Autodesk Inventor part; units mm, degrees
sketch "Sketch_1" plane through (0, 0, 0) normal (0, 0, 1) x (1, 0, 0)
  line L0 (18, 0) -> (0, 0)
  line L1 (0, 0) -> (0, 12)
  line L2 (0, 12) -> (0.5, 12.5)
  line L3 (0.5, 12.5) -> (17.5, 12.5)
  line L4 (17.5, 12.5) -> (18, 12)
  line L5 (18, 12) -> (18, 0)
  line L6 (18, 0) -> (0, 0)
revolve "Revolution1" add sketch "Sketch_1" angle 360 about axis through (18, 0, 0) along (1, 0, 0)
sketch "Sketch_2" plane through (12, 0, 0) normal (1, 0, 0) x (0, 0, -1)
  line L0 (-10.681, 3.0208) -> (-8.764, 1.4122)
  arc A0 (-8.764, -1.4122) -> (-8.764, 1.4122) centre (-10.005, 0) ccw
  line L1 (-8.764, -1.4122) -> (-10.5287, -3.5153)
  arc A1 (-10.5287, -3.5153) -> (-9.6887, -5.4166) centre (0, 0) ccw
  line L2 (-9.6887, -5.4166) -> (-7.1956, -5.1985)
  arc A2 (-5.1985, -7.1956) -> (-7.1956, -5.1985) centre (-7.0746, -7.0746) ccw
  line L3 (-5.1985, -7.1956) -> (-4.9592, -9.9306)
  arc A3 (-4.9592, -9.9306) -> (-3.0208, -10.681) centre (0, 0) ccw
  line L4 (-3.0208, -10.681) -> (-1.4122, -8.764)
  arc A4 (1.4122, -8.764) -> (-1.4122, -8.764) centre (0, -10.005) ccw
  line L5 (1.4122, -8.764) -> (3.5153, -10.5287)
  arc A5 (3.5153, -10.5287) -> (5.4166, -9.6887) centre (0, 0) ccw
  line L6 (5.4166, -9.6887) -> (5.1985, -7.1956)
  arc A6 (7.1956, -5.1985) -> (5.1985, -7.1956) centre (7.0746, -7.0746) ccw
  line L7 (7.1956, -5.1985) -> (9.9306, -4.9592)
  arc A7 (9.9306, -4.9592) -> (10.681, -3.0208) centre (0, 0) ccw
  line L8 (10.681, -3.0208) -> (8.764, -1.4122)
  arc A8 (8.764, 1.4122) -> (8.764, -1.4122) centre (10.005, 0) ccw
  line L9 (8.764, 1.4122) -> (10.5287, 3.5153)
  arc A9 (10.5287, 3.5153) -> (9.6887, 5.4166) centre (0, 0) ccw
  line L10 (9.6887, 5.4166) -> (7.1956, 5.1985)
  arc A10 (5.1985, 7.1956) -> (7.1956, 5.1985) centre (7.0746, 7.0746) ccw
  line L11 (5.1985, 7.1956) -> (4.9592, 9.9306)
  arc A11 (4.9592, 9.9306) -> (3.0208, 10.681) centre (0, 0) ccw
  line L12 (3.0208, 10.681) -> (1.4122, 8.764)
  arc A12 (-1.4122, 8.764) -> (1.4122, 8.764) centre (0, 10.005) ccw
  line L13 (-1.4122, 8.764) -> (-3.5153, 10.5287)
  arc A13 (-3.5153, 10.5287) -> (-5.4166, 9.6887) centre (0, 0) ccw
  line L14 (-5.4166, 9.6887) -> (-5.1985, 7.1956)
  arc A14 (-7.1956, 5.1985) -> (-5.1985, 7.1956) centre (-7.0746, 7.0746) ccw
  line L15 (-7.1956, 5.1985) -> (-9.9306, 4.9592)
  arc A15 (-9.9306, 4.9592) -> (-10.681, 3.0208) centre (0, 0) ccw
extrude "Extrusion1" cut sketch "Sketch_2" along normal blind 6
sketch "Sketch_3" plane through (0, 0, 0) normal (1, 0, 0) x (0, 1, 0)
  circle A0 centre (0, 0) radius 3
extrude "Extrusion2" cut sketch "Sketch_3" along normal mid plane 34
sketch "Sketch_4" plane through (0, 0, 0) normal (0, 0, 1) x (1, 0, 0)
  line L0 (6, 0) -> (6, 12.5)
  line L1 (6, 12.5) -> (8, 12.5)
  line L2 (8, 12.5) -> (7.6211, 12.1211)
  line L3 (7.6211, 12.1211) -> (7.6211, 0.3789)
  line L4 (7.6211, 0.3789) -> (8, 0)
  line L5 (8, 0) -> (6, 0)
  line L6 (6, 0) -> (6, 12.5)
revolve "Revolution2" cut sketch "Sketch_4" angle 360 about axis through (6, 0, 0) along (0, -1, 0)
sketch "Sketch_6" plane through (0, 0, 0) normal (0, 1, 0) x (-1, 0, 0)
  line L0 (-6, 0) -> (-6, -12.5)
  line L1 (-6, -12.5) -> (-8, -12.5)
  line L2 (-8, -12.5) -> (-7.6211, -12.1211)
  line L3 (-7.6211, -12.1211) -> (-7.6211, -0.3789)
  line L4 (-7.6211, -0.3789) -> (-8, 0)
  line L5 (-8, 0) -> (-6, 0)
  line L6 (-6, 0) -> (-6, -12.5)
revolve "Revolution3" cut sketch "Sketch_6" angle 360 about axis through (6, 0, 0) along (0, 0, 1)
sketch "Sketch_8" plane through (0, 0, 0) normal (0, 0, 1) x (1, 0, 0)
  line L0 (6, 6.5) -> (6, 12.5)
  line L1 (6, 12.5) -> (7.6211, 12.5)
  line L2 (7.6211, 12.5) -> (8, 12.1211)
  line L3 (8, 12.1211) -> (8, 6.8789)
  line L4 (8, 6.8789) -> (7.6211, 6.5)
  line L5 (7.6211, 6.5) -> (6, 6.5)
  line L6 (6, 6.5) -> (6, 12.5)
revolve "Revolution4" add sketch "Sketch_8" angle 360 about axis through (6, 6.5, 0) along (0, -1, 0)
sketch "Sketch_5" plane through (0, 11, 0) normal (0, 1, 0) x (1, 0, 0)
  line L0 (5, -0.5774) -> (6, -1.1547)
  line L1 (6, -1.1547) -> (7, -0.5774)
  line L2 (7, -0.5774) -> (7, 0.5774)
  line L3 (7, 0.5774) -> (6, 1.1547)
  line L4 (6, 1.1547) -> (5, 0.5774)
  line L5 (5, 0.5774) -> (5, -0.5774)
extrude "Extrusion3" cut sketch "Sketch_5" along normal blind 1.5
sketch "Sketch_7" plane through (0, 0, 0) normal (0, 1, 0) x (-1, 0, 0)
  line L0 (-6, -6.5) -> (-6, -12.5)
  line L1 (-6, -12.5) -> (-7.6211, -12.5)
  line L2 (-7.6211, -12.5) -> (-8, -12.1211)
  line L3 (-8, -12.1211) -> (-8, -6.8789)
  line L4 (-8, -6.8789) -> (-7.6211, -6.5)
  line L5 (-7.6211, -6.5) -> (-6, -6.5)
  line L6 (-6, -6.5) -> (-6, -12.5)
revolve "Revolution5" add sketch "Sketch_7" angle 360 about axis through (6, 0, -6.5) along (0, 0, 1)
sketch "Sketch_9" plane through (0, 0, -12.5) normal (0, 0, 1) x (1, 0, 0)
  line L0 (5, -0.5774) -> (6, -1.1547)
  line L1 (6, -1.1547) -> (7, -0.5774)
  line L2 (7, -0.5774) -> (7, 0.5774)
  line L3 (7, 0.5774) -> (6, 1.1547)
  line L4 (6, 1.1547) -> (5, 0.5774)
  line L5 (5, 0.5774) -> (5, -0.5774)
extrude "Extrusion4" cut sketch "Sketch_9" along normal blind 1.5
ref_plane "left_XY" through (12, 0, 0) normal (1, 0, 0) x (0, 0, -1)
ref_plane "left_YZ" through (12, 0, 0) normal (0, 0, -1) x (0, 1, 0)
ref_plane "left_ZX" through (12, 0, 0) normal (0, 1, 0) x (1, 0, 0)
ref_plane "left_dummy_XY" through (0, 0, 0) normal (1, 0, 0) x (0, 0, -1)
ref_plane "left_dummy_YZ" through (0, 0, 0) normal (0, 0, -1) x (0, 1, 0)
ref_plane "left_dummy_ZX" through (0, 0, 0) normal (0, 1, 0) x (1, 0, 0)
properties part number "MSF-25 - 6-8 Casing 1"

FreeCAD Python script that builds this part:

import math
import FreeCAD as App
import Part
import Sketcher

V = App.Vector
Q = App.Units.Quantity


def add_polygon(sketch, points):
    """Adds a closed chain of lines whose ends are joined by coincident constraints."""
    first, n = sketch.GeometryCount, len(points)
    for a, b in zip(points, points[1:] + points[:1]):
        sketch.addGeometry(Part.LineSegment(App.Vector(*a, 0), App.Vector(*b, 0)), False)
    for i in range(n):
        sketch.addConstraint(Sketcher.Constraint("Coincident", first + i, 2, first + (i + 1) % n, 1))

doc = App.newDocument("Part")
params = doc.addObject("Spreadsheet::Sheet", "Params")
for row, (alias, value) in enumerate([
    ("sketch1_width", "18 mm"),
    ("sketch1_width2", "17 mm"),
    ("sketch1_height", "12 mm"),
    ("revolution_angle", "360 deg"),
    ("sketch2_radius", "1.88 mm"),
    ("pocket1_length", "6 mm"),
    ("sketch3_diameter", "6 mm"),
    ("pocket2_length", "34 mm"),
    ("sketch4_width", "2 mm"),
    ("sketch4_height", "12.5 mm"),
    ("groove_angle", "360 deg"),
    ("sketch5_width", "2 mm"),
    ("sketch5_height", "12.5 mm"),
    ("groove2_angle", "360 deg"),
    ("sketch6_height", "6 mm"),
    ("revolution2_angle", "360 deg"),
    ("pocket3_length", "1.5 mm"),
    ("sketch8_height", "6 mm"),
    ("revolution3_angle", "360 deg"),
    ("pocket4_length", "1.5 mm"),
], start=1):
    params.set(f"A{row}", alias)
    params.set(f"B{row}", "=" + value)
    params.setAlias(f"B{row}", alias)

body = doc.addObject("PartDesign::Body", "Body")

# Sketch on XY plane
sketch1 = doc.addObject("Sketcher::SketchObject", "Sketch")
body.addObject(sketch1)
sketch1.AttachmentSupport = (doc.XY_Plane, [""])
sketch1.MapMode = "FlatFace"
add_polygon(sketch1, [(0, 0), (18, 0), (18, 12), (17.5, 12.5), (0.5, 12.5), (0, 12)])  # lines 0-5
sketch1.addConstraint([
    Sketcher.Constraint("Horizontal", 0),
    Sketcher.Constraint("Vertical", 1),
    Sketcher.Constraint("Horizontal", 3),
    Sketcher.Constraint("Vertical", 5),
    Sketcher.Constraint("Coincident", 5, 2, -1, 1),
    Sketcher.Constraint("Perpendicular", 2, 4),
    Sketcher.Constraint("Horizontal", 1, 2, 4, 2),
    Sketcher.Constraint("Equal", 2, 4),
    Sketcher.Constraint("DistanceX", 0, 1, 0, 2, Q("18 mm")),
    Sketcher.Constraint("DistanceX", 3, 2, 3, 1, Q("17 mm")),
    Sketcher.Constraint("DistanceY", 1, 1, 1, 2, Q("12 mm")),
])
sketch1.setExpression("Constraints[14]", "Params.sketch1_width")
sketch1.setExpression("Constraints[15]", "Params.sketch1_width2")
sketch1.setExpression("Constraints[16]", "Params.sketch1_height")
revolution = doc.addObject("PartDesign::Revolution", "Revolution")
body.addObject(revolution)
revolution.Profile = sketch1
revolution.ReferenceAxis = (sketch1, ["H_Axis"])
revolution.setExpression("Angle", "Params.revolution_angle")

# Sketch on YZ plane
sketch2 = doc.addObject("Sketcher::SketchObject", "Sketch001")
body.addObject(sketch2)
sketch2.AttachmentSupport = (doc.YZ_Plane, [""])
sketch2.MapMode = "FlatFace"
sketch2.AttachmentOffset = App.Placement(V(0, 0, 12), App.Rotation())
sketch2.addGeometry([
    Part.ArcOfCircle(Part.Circle(V(0.003085, 0.006977, 0), V(0, 0, 1), 11.092401), math.radians(63.461265), math.radians(74.213562)),  # 0
    Part.LineSegment(V(3.0208, 10.681, 0), V(1.4122, 8.764, 0)),  # 1
    Part.ArcOfCircle(Part.Circle(V(0, 10.005, 0), V(0, 0, 1), 1.879997), math.radians(-138.691941), math.radians(-41.308059)),  # 2
    Part.LineSegment(V(-1.4122, 8.764, 0), V(-3.5153, 10.5287, 0)),  # 3
    Part.ArcOfCircle(Part.Circle(V(-0.00073, 0.001888, 0), V(0, 0, 1), 11.098016), math.radians(108.462534), math.radians(119.209434)),  # 4
    Part.LineSegment(V(-5.4166, 9.6887, 0), V(-5.1985, 7.1956, 0)),  # 5
    Part.ArcOfCircle(Part.Circle(V(-7.0746, 7.0746, 0), V(0, 0, 1), 1.879998), math.radians(-93.690209), math.radians(3.690209)),  # 6
    Part.LineSegment(V(-7.1956, 5.1985, 0), V(-9.9306, 4.9592, 0)),  # 7
    Part.ArcOfCircle(Part.Circle(V(-0.006977, 0.003085, 0), V(0, 0, 1), 11.092401), math.radians(153.461265), math.radians(164.213562)),  # 8
    Part.LineSegment(V(-10.681, 3.0208, 0), V(-8.764, 1.4122, 0)),  # 9
    Part.ArcOfCircle(Part.Circle(V(-10.005, 0, 0), V(0, 0, 1), 1.879997), math.radians(-48.691941), math.radians(48.691941)),  # 10
    Part.LineSegment(V(-8.764, -1.4122, 0), V(-10.5287, -3.5153, 0)),  # 11
    Part.ArcOfCircle(Part.Circle(V(-0.001888, -0.00073, 0), V(0, 0, 1), 11.098016), math.radians(-161.537466), math.radians(-150.790566)),  # 12
    Part.LineSegment(V(-9.6887, -5.4166, 0), V(-7.1956, -5.1985, 0)),  # 13
    Part.ArcOfCircle(Part.Circle(V(-7.0746, -7.0746, 0), V(0, 0, 1), 1.879998), math.radians(-3.690209), math.radians(93.690209)),  # 14
    Part.LineSegment(V(-5.1985, -7.1956, 0), V(-4.9592, -9.9306, 0)),  # 15
    Part.ArcOfCircle(Part.Circle(V(-0.003085, -0.006977, 0), V(0, 0, 1), 11.092401), math.radians(-116.538735), math.radians(-105.786438)),  # 16
    Part.LineSegment(V(-3.0208, -10.681, 0), V(-1.4122, -8.764, 0)),  # 17
    Part.ArcOfCircle(Part.Circle(V(0, -10.005, 0), V(0, 0, 1), 1.879997), math.radians(41.308059), math.radians(138.691941)),  # 18
    Part.LineSegment(V(1.4122, -8.764, 0), V(3.5153, -10.5287, 0)),  # 19
    Part.ArcOfCircle(Part.Circle(V(0.00073, -0.001888, 0), V(0, 0, 1), 11.098016), math.radians(-71.537466), math.radians(-60.790566)),  # 20
    Part.LineSegment(V(5.4166, -9.6887, 0), V(5.1985, -7.1956, 0)),  # 21
    Part.ArcOfCircle(Part.Circle(V(7.0746, -7.0746, 0), V(0, 0, 1), 1.879998), math.radians(86.309791), math.radians(183.690209)),  # 22
    Part.LineSegment(V(7.1956, -5.1985, 0), V(9.9306, -4.9592, 0)),  # 23
    Part.ArcOfCircle(Part.Circle(V(0.006977, -0.003085, 0), V(0, 0, 1), 11.092401), math.radians(-26.538735), math.radians(-15.786438)),  # 24
    Part.LineSegment(V(10.681, -3.0208, 0), V(8.764, -1.4122, 0)),  # 25
    Part.ArcOfCircle(Part.Circle(V(10.005, 0, 0), V(0, 0, 1), 1.879997), math.radians(131.308059), math.radians(228.691941)),  # 26
    Part.LineSegment(V(8.764, 1.4122, 0), V(10.5287, 3.5153, 0)),  # 27
    Part.ArcOfCircle(Part.Circle(V(0.001888, 0.00073, 0), V(0, 0, 1), 11.098016), math.radians(18.462534), math.radians(29.209434)),  # 28
    Part.LineSegment(V(9.6887, 5.4166, 0), V(7.1956, 5.1985, 0)),  # 29
    Part.ArcOfCircle(Part.Circle(V(7.0746, 7.0746, 0), V(0, 0, 1), 1.879998), math.radians(176.309791), math.radians(273.690209)),  # 30
    Part.LineSegment(V(5.1985, 7.1956, 0), V(4.9592, 9.9306, 0)),  # 31
], False)
sketch2.addConstraint([
    Sketcher.Constraint("Coincident", 0, 2, 1, 1),
    Sketcher.Constraint("Coincident", 1, 2, 2, 2),
    Sketcher.Constraint("Coincident", 2, 1, 3, 1),
    Sketcher.Constraint("Coincident", 3, 2, 4, 1),
    Sketcher.Constraint("Coincident", 4, 2, 5, 1),
    Sketcher.Constraint("Coincident", 5, 2, 6, 2),
    Sketcher.Constraint("Coincident", 6, 1, 7, 1),
    Sketcher.Constraint("Coincident", 7, 2, 8, 1),
    Sketcher.Constraint("Coincident", 8, 2, 9, 1),
    Sketcher.Constraint("Coincident", 9, 2, 10, 2),
    Sketcher.Constraint("Coincident", 10, 1, 11, 1),
    Sketcher.Constraint("Coincident", 11, 2, 12, 1),
    Sketcher.Constraint("Coincident", 12, 2, 13, 1),
    Sketcher.Constraint("Coincident", 13, 2, 14, 2),
    Sketcher.Constraint("Coincident", 14, 1, 15, 1),
    Sketcher.Constraint("Coincident", 15, 2, 16, 1),
    Sketcher.Constraint("Coincident", 16, 2, 17, 1),
    Sketcher.Constraint("Coincident", 17, 2, 18, 2),
    Sketcher.Constraint("Coincident", 18, 1, 19, 1),
    Sketcher.Constraint("Coincident", 19, 2, 20, 1),
    Sketcher.Constraint("Coincident", 20, 2, 21, 1),
    Sketcher.Constraint("Coincident", 21, 2, 22, 2),
    Sketcher.Constraint("Coincident", 22, 1, 23, 1),
    Sketcher.Constraint("Coincident", 23, 2, 24, 1),
    Sketcher.Constraint("Coincident", 24, 2, 25, 1),
    Sketcher.Constraint("Coincident", 25, 2, 26, 2),
    Sketcher.Constraint("Coincident", 26, 1, 27, 1),
    Sketcher.Constraint("Coincident", 27, 2, 28, 1),
    Sketcher.Constraint("Coincident", 28, 2, 29, 1),
    Sketcher.Constraint("Coincident", 29, 2, 30, 2),
    Sketcher.Constraint("Coincident", 30, 1, 31, 1),
    Sketcher.Constraint("Coincident", 31, 2, 0, 1),
    Sketcher.Constraint("Equal", 2, 6),
    Sketcher.Constraint("Equal", 0, 8),
    Sketcher.Constraint("Equal", 6, 10),
    Sketcher.Constraint("Equal", 4, 12),
    Sketcher.Constraint("Equal", 10, 14),
    Sketcher.Constraint("Equal", 8, 16),
    Sketcher.Constraint("Equal", 14, 18),
    Sketcher.Constraint("Equal", 12, 20),
    Sketcher.Constraint("Equal", 18, 22),
    Sketcher.Constraint("Equal", 16, 24),
    Sketcher.Constraint("Equal", 22, 26),
    Sketcher.Constraint("Equal", 20, 28),
    Sketcher.Constraint("Equal", 26, 30),
    Sketcher.Constraint("Symmetric", 0, 3, 16, 3, -1, 1),
    Sketcher.Constraint("Symmetric", 2, 3, 18, 3, -1, 1),
    Sketcher.Constraint("Symmetric", 4, 3, 20, 3, -1, 1),
    Sketcher.Constraint("Symmetric", 6, 3, 22, 3, -1, 1),
    Sketcher.Constraint("Symmetric", 8, 3, 24, 3, -1, 1),
    Sketcher.Constraint("Symmetric", 10, 3, 26, 3, -1, 1),
    Sketcher.Constraint("Symmetric", 12, 3, 28, 3, -1, 1),
    Sketcher.Constraint("Symmetric", 14, 3, 30, 3, -1, 1),
    Sketcher.Constraint("Symmetric", 14, 3, 22, 3, -2),
    Sketcher.Constraint("Symmetric", 1, 2, 2, 1, -2),
    Sketcher.Constraint("Symmetric", 10, 1, 25, 2, -2),
    Sketcher.Constraint("Perpendicular", 1, 3),
    Sketcher.Constraint("Perpendicular", 5, 7),
    Sketcher.Constraint("Parallel", 3, 9),
    Sketcher.Constraint("Perpendicular", 9, 11),
    Sketcher.Constraint("Parallel", 7, 13),
    Sketcher.Constraint("Perpendicular", 13, 15),
    Sketcher.Constraint("Parallel", 11, 17),
    Sketcher.Constraint("Perpendicular", 17, 19),
    Sketcher.Constraint("Parallel", 15, 21),
    Sketcher.Constraint("Perpendicular", 21, 23),
    Sketcher.Constraint("Parallel", 19, 25),
    Sketcher.Constraint("Perpendicular", 25, 27),
    Sketcher.Constraint("Parallel", 23, 29),
    Sketcher.Constraint("Perpendicular", 29, 31),
    Sketcher.Constraint("Horizontal", 17, 2, 18, 1),
    Sketcher.Constraint("Horizontal", 14, 1, 21, 2),
    Sketcher.Constraint("Horizontal", 13, 2, 22, 1),
    Sketcher.Constraint("Horizontal", 9, 2, 26, 1),
    Sketcher.Constraint("Horizontal", 6, 1, 29, 2),
    Sketcher.Constraint("Horizontal", 5, 2, 30, 1),
    Sketcher.Constraint("Vertical", 9, 2, 10, 1),
    Sketcher.Constraint("Vertical", 6, 1, 13, 2),
    Sketcher.Constraint("Vertical", 5, 2, 14, 1),
    Sketcher.Constraint("Vertical", 2, 1, 17, 2),
    Sketcher.Constraint("Equal", 1, 5),
    Sketcher.Constraint("Equal", 3, 7),
    Sketcher.Constraint("Equal", 5, 9),
    Sketcher.Constraint("Equal", 7, 11),
    Sketcher.Constraint("Equal", 9, 13),
    Sketcher.Constraint("Equal", 11, 15),
    Sketcher.Constraint("Angle", 1, Q("-130.0008 deg")),
    Sketcher.Constraint("Angle", 5, Q("-85.0004 deg")),
    Sketcher.Constraint("Radius", 2, Q("1.88 mm")),
    Sketcher.Constraint("Radius", 4, Q("11.098 mm")),
    Sketcher.Constraint("Radius", 0, Q("11.0924 mm")),
    Sketcher.Constraint("DistanceX", 8, 3, 0, 3, Q("0.01 mm")),
    Sketcher.Constraint("DistanceY", 16, 3, 8, 3, Q("0.01 mm")),
    Sketcher.Constraint("DistanceY", 4, 2, 3, 2, Q("0.84 mm")),
    Sketcher.Constraint("DistanceX", 11, 2, 12, 2, Q("0.84 mm")),
    Sketcher.Constraint("DistanceX", -1, 1, 0, 3, Q("0.003 mm")),
    Sketcher.Constraint("DistanceY", -1, 1, 0, 3, Q("0.007 mm")),
    Sketcher.Constraint("DistanceY", -1, 1, 2, 3, Q("10.005 mm")),
    Sketcher.Constraint("DistanceY", -1, 1, 4, 3, Q("0.002 mm")),
    Sketcher.Constraint("DistanceX", 10, 3, -1, 1, Q("10.005 mm")),
    Sketcher.Constraint("DistanceY", -1, 1, 1, 2, Q("8.764 mm")),
])
sketch2.setExpression("Constraints[88]", "Params.sketch2_radius")
pocket1 = doc.addObject("PartDesign::Pocket", "Pocket")
body.addObject(pocket1)
pocket1.Profile = sketch2
pocket1.setExpression("Length", "Params.pocket1_length")
pocket1.Reversed = True

# Sketch on YZ plane
sketch3 = doc.addObject("Sketcher::SketchObject", "Sketch002")
body.addObject(sketch3)
sketch3.AttachmentSupport = (doc.YZ_Plane, [""])
sketch3.MapMode = "FlatFace"
sketch3.addGeometry(Part.Circle(V(0, 0, 0), V(0, 0, 1), 3), False)
sketch3.addConstraint([
    Sketcher.Constraint("Coincident", 0, 3, -1, 1),
    Sketcher.Constraint("Diameter", 0, Q("6 mm")),
])
sketch3.setExpression("Constraints[1]", "Params.sketch3_diameter")
pocket2 = doc.addObject("PartDesign::Pocket", "Pocket001")
body.addObject(pocket2)
pocket2.Profile = sketch3
pocket2.setExpression("Length", "Params.pocket2_length")
pocket2.Midplane = True

# Sketch on XY plane
sketch4 = doc.addObject("Sketcher::SketchObject", "Sketch003")
body.addObject(sketch4)
sketch4.AttachmentSupport = (doc.XY_Plane, [""])
sketch4.MapMode = "FlatFace"
add_polygon(sketch4, [(6, 12.5), (6, 0), (8, 0), (7.6, 0.4), (7.6, 12.1), (8, 12.5)])  # lines 0-5
sketch4.addGeometry(Part.LineSegment(V(6, 12.5, 0), V(6, 0, 0)), True)  # axis
sketch4.addConstraint([
    Sketcher.Constraint("Vertical", 0),
    Sketcher.Constraint("Horizontal", 1),
    Sketcher.Constraint("Vertical", 3),
    Sketcher.Constraint("Horizontal", 5),
    Sketcher.Constraint("Vertical", 6),
    Sketcher.Constraint("Coincident", 6, 1, 5, 2),
    Sketcher.Constraint("PointOnObject", 0, 2, -1),
    Sketcher.Constraint("PointOnObject", 6, 2, -1),
    Sketcher.Constraint("Perpendicular", 2, 4),
    Sketcher.Constraint("Vertical", 1, 2, 4, 2),
    Sketcher.Constraint("Equal", 2, 4),
    Sketcher.Constraint("DistanceX", 1, 1, 1, 2, Q("2 mm")),
    Sketcher.Constraint("DistanceY", 0, 2, 0, 1, Q("12.5 mm")),
    Sketcher.Constraint("DistanceX", -1, 1, 0, 2, Q("6 mm")),
    Sketcher.Constraint("DistanceY", 3, 1, 3, 2, Q("11.7422 mm")),
])
sketch4.setExpression("Constraints[17]", "Params.sketch4_width")
sketch4.setExpression("Constraints[18]", "Params.sketch4_height")
groove = doc.addObject("PartDesign::Groove", "Groove")
body.addObject(groove)
groove.Profile = sketch4
groove.ReferenceAxis = (sketch4, ["Axis0"])
groove.setExpression("Angle", "Params.groove_angle")

# Sketch on XZ plane
sketch5 = doc.addObject("Sketcher::SketchObject", "Sketch004")
body.addObject(sketch5)
sketch5.AttachmentSupport = (doc.XZ_Plane, [""])
sketch5.MapMode = "FlatFace"
add_polygon(sketch5, [(6, -12.5), (6, 0), (8, 0), (7.6, -0.4), (7.6, -12.1), (8, -12.5)])  # lines 0-5
sketch5.addGeometry(Part.LineSegment(V(6, -12.5, 0), V(6, 0, 0)), True)  # axis
sketch5.addConstraint([
    Sketcher.Constraint("Vertical", 0),
    Sketcher.Constraint("Horizontal", 1),
    Sketcher.Constraint("Vertical", 3),
    Sketcher.Constraint("Horizontal", 5),
    Sketcher.Constraint("Vertical", 6),
    Sketcher.Constraint("Coincident", 6, 1, 5, 2),
    Sketcher.Constraint("PointOnObject", 0, 2, -1),
    Sketcher.Constraint("PointOnObject", 6, 2, -1),
    Sketcher.Constraint("Perpendicular", 2, 4),
    Sketcher.Constraint("Vertical", 1, 2, 4, 2),
    Sketcher.Constraint("Equal", 2, 4),
    Sketcher.Constraint("DistanceX", 1, 1, 1, 2, Q("2 mm")),
    Sketcher.Constraint("DistanceY", 0, 1, 0, 2, Q("12.5 mm")),
    Sketcher.Constraint("DistanceX", -1, 1, 0, 2, Q("6 mm")),
    Sketcher.Constraint("DistanceY", 3, 2, 3, 1, Q("11.7422 mm")),
])
sketch5.setExpression("Constraints[17]", "Params.sketch5_width")
sketch5.setExpression("Constraints[18]", "Params.sketch5_height")
groove2 = doc.addObject("PartDesign::Groove", "Groove001")
body.addObject(groove2)
groove2.Profile = sketch5
groove2.ReferenceAxis = (sketch5, ["Axis0"])
groove2.setExpression("Angle", "Params.groove2_angle")

# Sketch on XY plane
sketch6 = doc.addObject("Sketcher::SketchObject", "Sketch005")
body.addObject(sketch6)
sketch6.AttachmentSupport = (doc.XY_Plane, [""])
sketch6.MapMode = "FlatFace"
add_polygon(sketch6, [(6, 12.5), (6, 6.5), (7.6, 6.5), (8, 6.9), (8, 12.1), (7.6, 12.5)])  # lines 0-5
sketch6.addGeometry(Part.LineSegment(V(6, 12.5, 0), V(6, 6.5, 0)), True)  # axis
sketch6.addConstraint([
    Sketcher.Constraint("Vertical", 0),
    Sketcher.Constraint("Horizontal", 1),
    Sketcher.Constraint("Vertical", 3),
    Sketcher.Constraint("Horizontal", 5),
    Sketcher.Constraint("Vertical", 6),
    Sketcher.Constraint("Coincident", 6, 1, 5, 2),
    Sketcher.Constraint("Perpendicular", 2, 4),
    Sketcher.Constraint("Horizontal", 1, 2, 6, 2),
    Sketcher.Constraint("Vertical", 1, 2, 4, 2),
    Sketcher.Constraint("Equal", 2, 4),
    Sketcher.Constraint("DistanceY", 0, 2, 0, 1, Q("6 mm")),
    Sketcher.Constraint("DistanceX", -1, 1, 0, 2, Q("6 mm")),
    Sketcher.Constraint("DistanceX", -1, 1, 2, 2, Q("8 mm")),
    Sketcher.Constraint("DistanceY", -1, 1, 0, 2, Q("6.5 mm")),
    Sketcher.Constraint("DistanceX", 1, 1, 1, 2, Q("1.621 mm")),
])
sketch6.setExpression("Constraints[16]", "Params.sketch6_height")
revolution2 = doc.addObject("PartDesign::Revolution", "Revolution001")
body.addObject(revolution2)
revolution2.Profile = sketch6
revolution2.ReferenceAxis = (sketch6, ["Axis0"])
revolution2.setExpression("Angle", "Params.revolution2_angle")

# Sketch on XZ plane
sketch7 = doc.addObject("Sketcher::SketchObject", "Sketch006")
body.addObject(sketch7)
sketch7.AttachmentSupport = (doc.XZ_Plane, [""])
sketch7.MapMode = "FlatFace"
sketch7.AttachmentOffset = App.Placement(V(0, 0, -11), App.Rotation())
add_polygon(sketch7, [(5, -0.6), (5, 0.6), (6, 1.2), (7, 0.6), (7, -0.6), (6, -1.2)])  # lines 0-5
sketch7.addConstraint([
    Sketcher.Constraint("Vertical", 0),
    Sketcher.Constraint("Vertical", 3),
    Sketcher.Constraint("Symmetric", 1, 2, 4, 2, -1),
    Sketcher.Constraint("Parallel", 1, 4),
    Sketcher.Constraint("Parallel", 2, 5),
    Sketcher.Constraint("Horizontal", 0, 2, 2, 2),
    Sketcher.Constraint("Horizontal", 3, 2, 5, 2),
    Sketcher.Constraint("DistanceX", -1, 1, 0, 2, Q("5 mm")),
    Sketcher.Constraint("DistanceX", -1, 1, 1, 2, Q("6 mm")),
    Sketcher.Constraint("DistanceY", 0, 1, 0, 2, Q("1.1548 mm")),
    Sketcher.Constraint("DistanceY", 3, 2, 1, 2, Q("1.732 mm")),
])
pocket3 = doc.addObject("PartDesign::Pocket", "Pocket002")
body.addObject(pocket3)
pocket3.Profile = sketch7
pocket3.setExpression("Length", "Params.pocket3_length")

# Sketch on XZ plane
sketch8 = doc.addObject("Sketcher::SketchObject", "Sketch007")
body.addObject(sketch8)
sketch8.AttachmentSupport = (doc.XZ_Plane, [""])
sketch8.MapMode = "FlatFace"
add_polygon(sketch8, [(6, -12.5), (6, -6.5), (7.6, -6.5), (8, -6.9), (8, -12.1), (7.6, -12.5)])  # lines 0-5
sketch8.addGeometry(Part.LineSegment(V(6, -12.5, 0), V(6, -6.5, 0)), True)  # axis
sketch8.addConstraint([
    Sketcher.Constraint("Vertical", 0),
    Sketcher.Constraint("Horizontal", 1),
    Sketcher.Constraint("Vertical", 3),
    Sketcher.Constraint("Horizontal", 5),
    Sketcher.Constraint("Vertical", 6),
    Sketcher.Constraint("Coincident", 6, 1, 5, 2),
    Sketcher.Constraint("Perpendicular", 2, 4),
    Sketcher.Constraint("Horizontal", 1, 2, 6, 2),
    Sketcher.Constraint("Vertical", 1, 2, 4, 2),
    Sketcher.Constraint("Equal", 2, 4),
    Sketcher.Constraint("DistanceY", 0, 1, 0, 2, Q("6 mm")),
    Sketcher.Constraint("DistanceX", -1, 1, 0, 2, Q("6 mm")),
    Sketcher.Constraint("DistanceX", -1, 1, 2, 2, Q("8 mm")),
    Sketcher.Constraint("DistanceY", 0, 2, -1, 1, Q("6.5 mm")),
    Sketcher.Constraint("DistanceX", 1, 1, 1, 2, Q("1.621 mm")),
])
sketch8.setExpression("Constraints[16]", "Params.sketch8_height")
revolution3 = doc.addObject("PartDesign::Revolution", "Revolution002")
body.addObject(revolution3)
revolution3.Profile = sketch8
revolution3.ReferenceAxis = (sketch8, ["Axis0"])
revolution3.setExpression("Angle", "Params.revolution3_angle")

# Sketch on XY plane
sketch9 = doc.addObject("Sketcher::SketchObject", "Sketch008")
body.addObject(sketch9)
sketch9.AttachmentSupport = (doc.XY_Plane, [""])
sketch9.MapMode = "FlatFace"
sketch9.AttachmentOffset = App.Placement(V(0, 0, -12.5), App.Rotation())
add_polygon(sketch9, [(5, 0.6), (5, -0.6), (6, -1.2), (7, -0.6), (7, 0.6), (6, 1.2)])  # lines 0-5
sketch9.addConstraint([
    Sketcher.Constraint("Vertical", 0),
    Sketcher.Constraint("Vertical", 3),
    Sketcher.Constraint("Symmetric", 1, 2, 4, 2, -1),
    Sketcher.Constraint("Parallel", 1, 4),
    Sketcher.Constraint("Parallel", 2, 5),
    Sketcher.Constraint("Horizontal", 0, 2, 2, 2),
    Sketcher.Constraint("Horizontal", 3, 2, 5, 2),
    Sketcher.Constraint("DistanceX", -1, 1, 0, 2, Q("5 mm")),
    Sketcher.Constraint("DistanceX", -1, 1, 1, 2, Q("6 mm")),
    Sketcher.Constraint("DistanceY", 0, 2, 0, 1, Q("1.1548 mm")),
    Sketcher.Constraint("DistanceY", 1, 2, 3, 2, Q("1.732 mm")),
])
pocket4 = doc.addObject("PartDesign::Pocket", "Pocket003")
body.addObject(pocket4)
pocket4.Profile = sketch9
pocket4.setExpression("Length", "Params.pocket4_length")
pocket4.Reversed = True

doc.recompute()
